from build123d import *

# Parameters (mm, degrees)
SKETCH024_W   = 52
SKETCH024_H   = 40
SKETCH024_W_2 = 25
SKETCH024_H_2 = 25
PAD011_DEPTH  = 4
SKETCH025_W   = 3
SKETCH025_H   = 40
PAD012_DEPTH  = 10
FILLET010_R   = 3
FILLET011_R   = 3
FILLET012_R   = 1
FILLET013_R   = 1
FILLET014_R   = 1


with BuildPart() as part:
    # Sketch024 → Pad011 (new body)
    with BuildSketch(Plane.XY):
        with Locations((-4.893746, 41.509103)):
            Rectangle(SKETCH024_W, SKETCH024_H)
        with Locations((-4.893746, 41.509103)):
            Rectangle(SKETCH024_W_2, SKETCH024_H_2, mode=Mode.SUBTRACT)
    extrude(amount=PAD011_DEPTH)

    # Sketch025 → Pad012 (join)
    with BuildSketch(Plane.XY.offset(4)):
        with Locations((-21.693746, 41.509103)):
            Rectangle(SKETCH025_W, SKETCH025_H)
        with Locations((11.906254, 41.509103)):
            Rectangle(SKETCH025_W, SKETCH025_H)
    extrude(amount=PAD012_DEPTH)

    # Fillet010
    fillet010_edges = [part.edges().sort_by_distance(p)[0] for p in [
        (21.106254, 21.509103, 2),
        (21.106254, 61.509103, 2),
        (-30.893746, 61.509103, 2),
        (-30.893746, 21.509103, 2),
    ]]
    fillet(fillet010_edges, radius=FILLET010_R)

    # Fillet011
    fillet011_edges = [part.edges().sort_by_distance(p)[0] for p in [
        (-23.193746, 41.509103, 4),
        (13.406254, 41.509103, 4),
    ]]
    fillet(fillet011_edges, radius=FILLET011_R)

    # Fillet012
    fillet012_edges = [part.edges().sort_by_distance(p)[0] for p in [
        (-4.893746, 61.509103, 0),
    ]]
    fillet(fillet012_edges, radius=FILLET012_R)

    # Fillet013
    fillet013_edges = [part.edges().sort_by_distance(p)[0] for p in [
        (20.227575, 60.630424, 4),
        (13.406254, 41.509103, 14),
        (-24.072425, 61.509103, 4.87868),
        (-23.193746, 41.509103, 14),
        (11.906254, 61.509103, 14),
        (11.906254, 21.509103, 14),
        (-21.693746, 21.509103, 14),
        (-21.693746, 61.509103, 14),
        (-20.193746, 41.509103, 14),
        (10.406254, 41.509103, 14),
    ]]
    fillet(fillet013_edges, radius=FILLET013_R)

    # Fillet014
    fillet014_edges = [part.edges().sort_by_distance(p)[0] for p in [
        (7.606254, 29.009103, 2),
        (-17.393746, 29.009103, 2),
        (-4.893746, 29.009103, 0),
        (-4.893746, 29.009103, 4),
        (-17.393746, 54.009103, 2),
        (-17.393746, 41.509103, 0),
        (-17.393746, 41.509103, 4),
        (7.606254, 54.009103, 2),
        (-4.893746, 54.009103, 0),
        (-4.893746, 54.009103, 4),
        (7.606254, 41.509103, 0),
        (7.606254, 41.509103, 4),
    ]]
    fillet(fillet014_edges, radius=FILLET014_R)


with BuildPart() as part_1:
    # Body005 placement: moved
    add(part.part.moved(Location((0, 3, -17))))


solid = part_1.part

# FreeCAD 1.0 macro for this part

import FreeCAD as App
import Part
import Sketcher
Q = App.Units.Quantity


def edges_at(feature, points):
    """Names of the edges that pass closest to the given points."""
    edges = feature.Shape.Edges
    near = lambda p: min(range(len(edges)), key=lambda i: edges[i].distToShape(Part.Vertex(*p))[0])
    return sorted({f"Edge{near(p) + 1}" for p in points})

doc = App.newDocument("Part")
body = doc.addObject("PartDesign::Body", "Body")

# Sketch on XY plane
sketch1 = doc.addObject("Sketcher::SketchObject", "Sketch")
body.addObject(sketch1)
sketch1.AttachmentSupport = (doc.XY_Plane, [""])
sketch1.MapMode = "FlatFace"
sketch1.addGeometry([
    Part.LineSegment(App.Vector(-31, 62, 0), App.Vector(-31, 22, 0)),  # 0
    Part.LineSegment(App.Vector(-31, 22, 0), App.Vector(21, 22, 0)),  # 1
    Part.LineSegment(App.Vector(21, 22, 0), App.Vector(21, 62, 0)),  # 2
    Part.LineSegment(App.Vector(21, 62, 0), App.Vector(-31, 62, 0)),  # 3
    Part.LineSegment(App.Vector(8, 29, 0), App.Vector(-17, 29, 0)),  # 4
    Part.LineSegment(App.Vector(-17, 29, 0), App.Vector(-17, 54, 0)),  # 5
    Part.LineSegment(App.Vector(-17, 54, 0), App.Vector(8, 54, 0)),  # 6
    Part.LineSegment(App.Vector(8, 54, 0), App.Vector(8, 29, 0)),  # 7
], False)
sketch1.addConstraint([
    Sketcher.Constraint("Coincident", 0, 2, 1, 1),
    Sketcher.Constraint("Coincident", 1, 2, 2, 1),
    Sketcher.Constraint("Coincident", 2, 2, 3, 1),
    Sketcher.Constraint("Coincident", 3, 2, 0, 1),
    Sketcher.Constraint("Coincident", 4, 2, 5, 1),
    Sketcher.Constraint("Coincident", 5, 2, 6, 1),
    Sketcher.Constraint("Coincident", 6, 2, 7, 1),
    Sketcher.Constraint("Coincident", 7, 2, 4, 1),
    Sketcher.Constraint("Vertical", 0),
    Sketcher.Constraint("Horizontal", 1),
    Sketcher.Constraint("Vertical", 2),
    Sketcher.Constraint("Horizontal", 3),
    Sketcher.Constraint("Horizontal", 4),
    Sketcher.Constraint("Vertical", 5),
    Sketcher.Constraint("Horizontal", 6),
    Sketcher.Constraint("Vertical", 7),
    Sketcher.Constraint("Equal", 6, 5),
    Sketcher.Constraint("DistanceX", 1, 1, 1, 2, Q("52 mm")),
    Sketcher.Constraint("DistanceX", 4, 2, 4, 1, Q("25 mm")),
    Sketcher.Constraint("DistanceY", 0, 2, 0, 1, Q("40 mm")),
    Sketcher.Constraint("DistanceX", 0, 2, 4, 2, Q("13.5 mm")),
    Sketcher.Constraint("DistanceY", 0, 2, 4, 2, Q("7.5 mm")),
    Sketcher.Constraint("DistanceX", 0, 2, -1, 1, Q("30.893746 mm")),
    Sketcher.Constraint("DistanceY", -1, 1, 0, 2, Q("21.509103 mm")),
])
pad1 = doc.addObject("PartDesign::Pad", "Pad")
body.addObject(pad1)
pad1.Profile = sketch1
pad1.Length = 4

# Sketch on XY plane
sketch2 = doc.addObject("Sketcher::SketchObject", "Sketch001")
body.addObject(sketch2)
sketch2.AttachmentSupport = (doc.XY_Plane, [""])
sketch2.MapMode = "FlatFace"
sketch2.AttachmentOffset = App.Placement(App.Vector(0, 0, 4), App.Rotation())
sketch2.addGeometry([
    Part.LineSegment(App.Vector(-23.2, 61.5, 0), App.Vector(-23.2, 21.5, 0)),  # 0
    Part.LineSegment(App.Vector(-23.2, 21.5, 0), App.Vector(-20.2, 21.5, 0)),  # 1
    Part.LineSegment(App.Vector(-20.2, 21.5, 0), App.Vector(-20.2, 61.5, 0)),  # 2
    Part.LineSegment(App.Vector(-20.2, 61.5, 0), App.Vector(-23.2, 61.5, 0)),  # 3
    Part.LineSegment(App.Vector(10.4, 61.5, 0), App.Vector(10.4, 21.5, 0)),  # 4
    Part.LineSegment(App.Vector(10.4, 21.5, 0), App.Vector(13.4, 21.5, 0)),  # 5
    Part.LineSegment(App.Vector(13.4, 21.5, 0), App.Vector(13.4, 61.5, 0)),  # 6
    Part.LineSegment(App.Vector(13.4, 61.5, 0), App.Vector(10.4, 61.5, 0)),  # 7
], False)
sketch2.addConstraint([
    Sketcher.Constraint("Coincident", 0, 2, 1, 1),
    Sketcher.Constraint("Coincident", 1, 2, 2, 1),
    Sketcher.Constraint("Coincident", 2, 2, 3, 1),
    Sketcher.Constraint("Coincident", 3, 2, 0, 1),
    Sketcher.Constraint("Coincident", 4, 2, 5, 1),
    Sketcher.Constraint("Coincident", 5, 2, 6, 1),
    Sketcher.Constraint("Coincident", 6, 2, 7, 1),
    Sketcher.Constraint("Coincident", 7, 2, 4, 1),
    Sketcher.Constraint("Vertical", 0),
    Sketcher.Constraint("Horizontal", 1),
    Sketcher.Constraint("Vertical", 2),
    Sketcher.Constraint("Horizontal", 3),
    Sketcher.Constraint("Vertical", 4),
    Sketcher.Constraint("Horizontal", 5),
    Sketcher.Constraint("Vertical", 6),
    Sketcher.Constraint("Horizontal", 7),
    Sketcher.Constraint("Horizontal", 1, 2, 4, 2),
    Sketcher.Constraint("Horizontal", 3, 2, 6, 2),
    Sketcher.Constraint("Equal", 3, 5),
    Sketcher.Constraint("DistanceX", 1, 1, 1, 2, Q("3 mm")),
    Sketcher.Constraint("DistanceY", 0, 2, 0, 1, Q("40 mm")),
    Sketcher.Constraint("DistanceX", 1, 2, 4, 2, Q("30.6 mm")),
    Sketcher.Constraint("DistanceX", 0, 2, -1, 1, Q("23.193746 mm")),
    Sketcher.Constraint("DistanceY", -1, 1, 0, 2, Q("21.509103 mm")),
])
pad2 = doc.addObject("PartDesign::Pad", "Pad001")
body.addObject(pad2)
pad2.Profile = sketch2
pad2.Length = 10
doc.recompute()

fillet = doc.addObject("PartDesign::Fillet", "Fillet")
body.addObject(fillet)
fillet.Base = (pad2, edges_at(pad2, [
    (21.106, 21.509, 2),
    (21.106, 61.509, 2),
    (-30.894, 61.509, 2),
    (-30.894, 21.509, 2),
]))
fillet.Radius = 3
doc.recompute()

fillet2 = doc.addObject("PartDesign::Fillet", "Fillet001")
body.addObject(fillet2)
fillet2.Base = (fillet, edges_at(fillet, [(-23.194, 41.509, 4), (13.406, 41.509, 4)]))
fillet2.Radius = 3
doc.recompute()

fillet3 = doc.addObject("PartDesign::Fillet", "Fillet002")
body.addObject(fillet3)
fillet3.Base = (fillet2, edges_at(fillet2, [(-4.894, 61.509, 0)]))
fillet3.Radius = 1
doc.recompute()

fillet4 = doc.addObject("PartDesign::Fillet", "Fillet003")
body.addObject(fillet4)
fillet4.Base = (fillet3, edges_at(fillet3, [
    (20.228, 60.63, 4),
    (13.406, 41.509, 14),
    (-24.072, 61.509, 4.879),
    (-23.194, 41.509, 14),
    (11.906, 61.509, 14),
    (11.906, 21.509, 14),
    (-21.694, 21.509, 14),
    (-21.694, 61.509, 14),
    (-20.194, 41.509, 14),
    (10.406, 41.509, 14),
]))
fillet4.Radius = 1
doc.recompute()

fillet5 = doc.addObject("PartDesign::Fillet", "Fillet004")
body.addObject(fillet5)
fillet5.Base = (fillet4, edges_at(fillet4, [
    (7.606, 29.009, 2),
    (-17.394, 29.009, 2),
    (-4.894, 29.009, 0),
    (-4.894, 29.009, 4),
    (-17.394, 54.009, 2),
    (-17.394, 41.509, 0),
    (-17.394, 41.509, 4),
    (7.606, 54.009, 2),
    (-4.894, 54.009, 0),
    (-4.894, 54.009, 4),
    (7.606, 41.509, 0),
    (7.606, 41.509, 4),
]))
fillet5.Radius = 1
body2 = doc.addObject("PartDesign::Body", "Body001")
doc.recompute()

body.Placement = App.Placement(App.Vector(0, 3, -17), App.Rotation(App.Vector(0, 0, 1), 0))
boolean = doc.addObject("PartDesign::Boolean", "Boolean")
body2.addObject(boolean)
boolean.Type = "Fuse"
boolean.addObjects([body])

doc.recompute()
